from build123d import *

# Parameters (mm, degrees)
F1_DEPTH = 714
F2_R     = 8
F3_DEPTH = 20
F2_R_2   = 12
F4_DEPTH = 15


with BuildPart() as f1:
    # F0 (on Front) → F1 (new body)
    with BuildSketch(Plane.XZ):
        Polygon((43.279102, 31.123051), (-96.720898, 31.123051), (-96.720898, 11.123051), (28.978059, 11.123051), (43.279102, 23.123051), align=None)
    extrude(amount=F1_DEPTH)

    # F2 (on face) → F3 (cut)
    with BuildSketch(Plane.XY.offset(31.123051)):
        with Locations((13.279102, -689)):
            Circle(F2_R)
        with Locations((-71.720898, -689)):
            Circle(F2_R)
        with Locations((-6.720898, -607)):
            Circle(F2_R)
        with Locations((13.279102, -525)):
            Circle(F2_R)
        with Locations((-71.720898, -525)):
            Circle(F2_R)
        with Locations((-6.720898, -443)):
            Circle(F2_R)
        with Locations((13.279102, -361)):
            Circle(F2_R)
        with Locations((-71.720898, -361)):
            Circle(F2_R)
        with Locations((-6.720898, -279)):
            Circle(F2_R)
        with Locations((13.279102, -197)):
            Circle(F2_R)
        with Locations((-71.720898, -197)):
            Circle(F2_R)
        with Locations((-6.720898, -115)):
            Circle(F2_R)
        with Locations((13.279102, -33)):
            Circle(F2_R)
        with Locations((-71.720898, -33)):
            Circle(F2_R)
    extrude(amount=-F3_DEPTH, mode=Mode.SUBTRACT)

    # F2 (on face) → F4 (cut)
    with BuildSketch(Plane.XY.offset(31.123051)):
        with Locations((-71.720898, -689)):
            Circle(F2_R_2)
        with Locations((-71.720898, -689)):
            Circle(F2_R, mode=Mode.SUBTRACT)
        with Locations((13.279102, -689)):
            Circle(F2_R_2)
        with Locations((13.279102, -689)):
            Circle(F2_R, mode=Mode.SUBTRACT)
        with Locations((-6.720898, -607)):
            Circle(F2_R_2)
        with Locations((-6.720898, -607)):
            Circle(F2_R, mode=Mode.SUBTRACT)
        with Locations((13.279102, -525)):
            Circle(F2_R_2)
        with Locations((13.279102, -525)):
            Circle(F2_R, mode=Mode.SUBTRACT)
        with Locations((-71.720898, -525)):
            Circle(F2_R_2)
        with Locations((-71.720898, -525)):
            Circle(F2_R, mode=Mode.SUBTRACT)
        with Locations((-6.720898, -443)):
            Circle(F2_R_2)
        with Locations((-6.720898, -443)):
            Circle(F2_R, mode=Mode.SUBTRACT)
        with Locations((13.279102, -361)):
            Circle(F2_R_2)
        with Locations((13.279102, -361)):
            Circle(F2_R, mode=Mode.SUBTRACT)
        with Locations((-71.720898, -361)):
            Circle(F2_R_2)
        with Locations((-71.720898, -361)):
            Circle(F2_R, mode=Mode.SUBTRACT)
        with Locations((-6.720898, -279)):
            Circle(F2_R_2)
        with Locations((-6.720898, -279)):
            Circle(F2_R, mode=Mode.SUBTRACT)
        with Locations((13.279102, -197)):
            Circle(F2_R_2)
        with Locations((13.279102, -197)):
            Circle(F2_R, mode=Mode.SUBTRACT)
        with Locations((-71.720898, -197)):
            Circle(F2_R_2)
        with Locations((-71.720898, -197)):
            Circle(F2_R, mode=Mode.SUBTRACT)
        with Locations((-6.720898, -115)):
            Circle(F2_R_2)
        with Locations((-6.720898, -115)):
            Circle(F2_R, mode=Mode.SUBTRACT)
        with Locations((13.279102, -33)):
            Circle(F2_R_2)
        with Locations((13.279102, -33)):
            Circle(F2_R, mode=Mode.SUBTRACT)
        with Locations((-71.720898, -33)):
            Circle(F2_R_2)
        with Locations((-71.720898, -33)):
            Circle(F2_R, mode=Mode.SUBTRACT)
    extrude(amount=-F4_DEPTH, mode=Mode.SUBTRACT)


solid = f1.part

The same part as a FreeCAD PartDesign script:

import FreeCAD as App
import Part
import Sketcher
from FreeCAD import Vector
Q = App.Units.Quantity

doc = App.newDocument("Part")
body = doc.addObject("PartDesign::Body", "Body")

# Sketch on XZ plane
sketch1 = body.newObject("Sketcher::SketchObject", "Sketch")
sketch1.AttachmentSupport = (doc.getObject("XZ_Plane"), [""])
sketch1.MapMode = "FlatFace"
sketch1.addGeometry([
    Part.LineSegment(Vector(43.279102, 31.123051, 0), Vector(-96.720898, 31.123051, 0)),  # 0
    Part.LineSegment(Vector(-96.720898, 31.123051, 0), Vector(-96.720898, 11.123051, 0)),  # 1
    Part.LineSegment(Vector(-96.720898, 11.123051, 0), Vector(28.978059, 11.123051, 0)),  # 2
    Part.LineSegment(Vector(28.978059, 11.123051, 0), Vector(43.279102, 23.123051, 0)),  # 3
    Part.LineSegment(Vector(43.279102, 23.123051, 0), Vector(43.279102, 31.123051, 0)),  # 4
], False)
sketch1.addConstraint([
    Sketcher.Constraint("Coincident", 0, 2, 1, 1),
    Sketcher.Constraint("Coincident", 1, 2, 2, 1),
    Sketcher.Constraint("Coincident", 2, 2, 3, 1),
    Sketcher.Constraint("Coincident", 3, 2, 4, 1),
    Sketcher.Constraint("Coincident", 4, 2, 0, 1),
    Sketcher.Constraint("Horizontal", 0),
    Sketcher.Constraint("Vertical", 1),
    Sketcher.Constraint("Horizontal", 2),
    Sketcher.Constraint("Vertical", 4),
    Sketcher.Constraint("DistanceX", 0, 2, 0, 1, 140.0),
    Sketcher.Constraint("DistanceY", 1, 2, 1, 1, 20.0),
    Sketcher.Constraint("DistanceY", 4, 1, 4, 2, 8.0),
    Sketcher.Constraint("Angle", 3, Q("40 deg")),
    Sketcher.Constraint("DistanceX", 0, 2, -1, 1, 96.720898),
    Sketcher.Constraint("DistanceY", -1, 1, 0, 2, 31.123051),
])
pad1 = body.newObject("PartDesign::Pad", "Pad")
pad1.Profile = sketch1
pad1.Length = 714

# Sketch on XY plane
sketch2 = body.newObject("Sketcher::SketchObject", "Sketch001")
sketch2.AttachmentSupport = (doc.getObject("XY_Plane"), [""])
sketch2.MapMode = "FlatFace"
sketch2.AttachmentOffset = App.Placement(Vector(0, 0, 31.123051), App.Rotation())
sketch2.addGeometry([
    Part.Circle(Vector(13.279102, -689, 0), Vector(0, 0, 1), 8),  # 0
    Part.Circle(Vector(-71.720898, -689, 0), Vector(0, 0, 1), 8),  # 1
    Part.Circle(Vector(-6.720898, -607, 0), Vector(0, 0, 1), 8),  # 2
    Part.Circle(Vector(13.279102, -525, 0), Vector(0, 0, 1), 8),  # 3
    Part.Circle(Vector(-71.720898, -525, 0), Vector(0, 0, 1), 8),  # 4
    Part.Circle(Vector(-6.720898, -443, 0), Vector(0, 0, 1), 8),  # 5
    Part.Circle(Vector(13.279102, -361, 0), Vector(0, 0, 1), 8),  # 6
    Part.Circle(Vector(-71.720898, -361, 0), Vector(0, 0, 1), 8),  # 7
    Part.Circle(Vector(-6.720898, -279, 0), Vector(0, 0, 1), 8),  # 8
    Part.Circle(Vector(13.279102, -197, 0), Vector(0, 0, 1), 8),  # 9
    Part.Circle(Vector(-71.720898, -197, 0), Vector(0, 0, 1), 8),  # 10
    Part.Circle(Vector(-6.720898, -115, 0), Vector(0, 0, 1), 8),  # 11
    Part.Circle(Vector(13.279102, -33, 0), Vector(0, 0, 1), 8),  # 12
    Part.Circle(Vector(-71.720898, -33, 0), Vector(0, 0, 1), 8),  # 13
], False)
sketch2.addConstraint([
    Sketcher.Constraint("Equal", 0, 1),
    Sketcher.Constraint("Equal", 1, 2),
    Sketcher.Constraint("Equal", 2, 3),
    Sketcher.Constraint("Equal", 3, 4),
    Sketcher.Constraint("Equal", 4, 5),
    Sketcher.Constraint("Equal", 5, 6),
    Sketcher.Constraint("Equal", 6, 7),
    Sketcher.Constraint("Equal", 7, 8),
    Sketcher.Constraint("Equal", 8, 9),
    Sketcher.Constraint("Equal", 9, 10),
    Sketcher.Constraint("Equal", 10, 11),
    Sketcher.Constraint("Equal", 11, 12),
    Sketcher.Constraint("Equal", 12, 13),
    Sketcher.Constraint("Horizontal", 0, 3, 1, 3),
    Sketcher.Constraint("Horizontal", 3, 3, 4, 3),
    Sketcher.Constraint("Horizontal", 6, 3, 7, 3),
    Sketcher.Constraint("Horizontal", 9, 3, 10, 3),
    Sketcher.Constraint("Horizontal", 12, 3, 13, 3),
    Sketcher.Constraint("Vertical", 0, 3, 3, 3),
    Sketcher.Constraint("Vertical", 1, 3, 4, 3),
    Sketcher.Constraint("Vertical", 2, 3, 5, 3),
    Sketcher.Constraint("Vertical", 3, 3, 6, 3),
    Sketcher.Constraint("Vertical", 4, 3, 7, 3),
    Sketcher.Constraint("Vertical", 5, 3, 8, 3),
    Sketcher.Constraint("Vertical", 6, 3, 9, 3),
    Sketcher.Constraint("Vertical", 7, 3, 10, 3),
    Sketcher.Constraint("Vertical", 8, 3, 11, 3),
    Sketcher.Constraint("Vertical", 9, 3, 12, 3),
    Sketcher.Constraint("Vertical", 10, 3, 13, 3),
    Sketcher.Constraint("Diameter", 0, 16.0),
    Sketcher.Constraint("DistanceY", 0, 3, -1, 1, 689.0),
    Sketcher.Constraint("DistanceY", 2, 3, -1, 1, 607.0),
    Sketcher.Constraint("DistanceY", 3, 3, -1, 1, 525.0),
    Sketcher.Constraint("DistanceY", 5, 3, -1, 1, 443.0),
    Sketcher.Constraint("DistanceY", 6, 3, -1, 1, 361.0),
    Sketcher.Constraint("DistanceY", 8, 3, -1, 1, 279.0),
    Sketcher.Constraint("DistanceY", 9, 3, -1, 1, 197.0),
    Sketcher.Constraint("DistanceY", 11, 3, -1, 1, 115.0),
    Sketcher.Constraint("DistanceY", 12, 3, -1, 1, 33.0),
    Sketcher.Constraint("DistanceX", 1, 3, 0, 3, 85.0),
    Sketcher.Constraint("DistanceX", 2, 3, 0, 3, 20.0),
    Sketcher.Constraint("DistanceX", 1, 3, -1, 1, 71.720898),
])
pocket1 = body.newObject("PartDesign::Pocket", "Pocket")
pocket1.Profile = sketch2
pocket1.Length = 20

# Sketch on XY plane
sketch3 = body.newObject("Sketcher::SketchObject", "Sketch002")
sketch3.AttachmentSupport = (doc.getObject("XY_Plane"), [""])
sketch3.MapMode = "FlatFace"
sketch3.AttachmentOffset = App.Placement(Vector(0, 0, 31.123051), App.Rotation())
sketch3.addGeometry([
    Part.Circle(Vector(-71.720898, -689, 0), Vector(0, 0, 1), 12),  # 0
    Part.Circle(Vector(-71.720898, -689, 0), Vector(0, 0, 1), 8),  # 1
    Part.Circle(Vector(13.279102, -689, 0), Vector(0, 0, 1), 12),  # 2
    Part.Circle(Vector(13.279102, -689, 0), Vector(0, 0, 1), 8),  # 3
    Part.Circle(Vector(-6.720898, -607, 0), Vector(0, 0, 1), 12),  # 4
    Part.Circle(Vector(-6.720898, -607, 0), Vector(0, 0, 1), 8),  # 5
    Part.Circle(Vector(13.279102, -525, 0), Vector(0, 0, 1), 12),  # 6
    Part.Circle(Vector(13.279102, -525, 0), Vector(0, 0, 1), 8),  # 7
    Part.Circle(Vector(-71.720898, -525, 0), Vector(0, 0, 1), 12),  # 8
    Part.Circle(Vector(-71.720898, -525, 0), Vector(0, 0, 1), 8),  # 9
    Part.Circle(Vector(-6.720898, -443, 0), Vector(0, 0, 1), 12),  # 10
    Part.Circle(Vector(-6.720898, -443, 0), Vector(0, 0, 1), 8),  # 11
    Part.Circle(Vector(13.279102, -361, 0), Vector(0, 0, 1), 12),  # 12
    Part.Circle(Vector(13.279102, -361, 0), Vector(0, 0, 1), 8),  # 13
    Part.Circle(Vector(-71.720898, -361, 0), Vector(0, 0, 1), 12),  # 14
    Part.Circle(Vector(-71.720898, -361, 0), Vector(0, 0, 1), 8),  # 15
    Part.Circle(Vector(-6.720898, -279, 0), Vector(0, 0, 1), 12),  # 16
    Part.Circle(Vector(-6.720898, -279, 0), Vector(0, 0, 1), 8),  # 17
    Part.Circle(Vector(13.279102, -197, 0), Vector(0, 0, 1), 12),  # 18
    Part.Circle(Vector(13.279102, -197, 0), Vector(0, 0, 1), 8),  # 19
    Part.Circle(Vector(-71.720898, -197, 0), Vector(0, 0, 1), 12),  # 20
    Part.Circle(Vector(-71.720898, -197, 0), Vector(0, 0, 1), 8),  # 21
    Part.Circle(Vector(-6.720898, -115, 0), Vector(0, 0, 1), 12),  # 22
    Part.Circle(Vector(-6.720898, -115, 0), Vector(0, 0, 1), 8),  # 23
    Part.Circle(Vector(13.279102, -33, 0), Vector(0, 0, 1), 12),  # 24
    Part.Circle(Vector(13.279102, -33, 0), Vector(0, 0, 1), 8),  # 25
    Part.Circle(Vector(-71.720898, -33, 0), Vector(0, 0, 1), 12),  # 26
    Part.Circle(Vector(-71.720898, -33, 0), Vector(0, 0, 1), 8),  # 27
], False)
sketch3.addConstraint([
    Sketcher.Constraint("Coincident", 1, 3, 0, 3),
    Sketcher.Constraint("Coincident", 3, 3, 2, 3),
    Sketcher.Constraint("Coincident", 5, 3, 4, 3),
    Sketcher.Constraint("Coincident", 7, 3, 6, 3),
    Sketcher.Constraint("Coincident", 9, 3, 8, 3),
    Sketcher.Constraint("Coincident", 11, 3, 10, 3),
    Sketcher.Constraint("Coincident", 13, 3, 12, 3),
    Sketcher.Constraint("Coincident", 15, 3, 14, 3),
    Sketcher.Constraint("Coincident", 17, 3, 16, 3),
    Sketcher.Constraint("Coincident", 19, 3, 18, 3),
    Sketcher.Constraint("Coincident", 21, 3, 20, 3),
    Sketcher.Constraint("Coincident", 23, 3, 22, 3),
    Sketcher.Constraint("Coincident", 25, 3, 24, 3),
    Sketcher.Constraint("Coincident", 27, 3, 26, 3),
    Sketcher.Constraint("Equal", 0, 2),
    Sketcher.Constraint("Equal", 1, 3),
    Sketcher.Constraint("Equal", 2, 4),
    Sketcher.Constraint("Equal", 3, 5),
    Sketcher.Constraint("Equal", 4, 6),
    Sketcher.Constraint("Equal", 5, 7),
    Sketcher.Constraint("Equal", 6, 8),
    Sketcher.Constraint("Equal", 7, 9),
    Sketcher.Constraint("Equal", 8, 10),
    Sketcher.Constraint("Equal", 9, 11),
    Sketcher.Constraint("Equal", 10, 12),
    Sketcher.Constraint("Equal", 11, 13),
    Sketcher.Constraint("Equal", 12, 14),
    Sketcher.Constraint("Equal", 13, 15),
    Sketcher.Constraint("Equal", 14, 16),
    Sketcher.Constraint("Equal", 15, 17),
    Sketcher.Constraint("Equal", 16, 18),
    Sketcher.Constraint("Equal", 17, 19),
    Sketcher.Constraint("Equal", 18, 20),
    Sketcher.Constraint("Equal", 19, 21),
    Sketcher.Constraint("Equal", 20, 22),
    Sketcher.Constraint("Equal", 21, 23),
    Sketcher.Constraint("Equal", 22, 24),
    Sketcher.Constraint("Equal", 23, 25),
    Sketcher.Constraint("Equal", 24, 26),
    Sketcher.Constraint("Equal", 25, 27),
    Sketcher.Constraint("Horizontal", 1, 3, 2, 3),
    Sketcher.Constraint("Horizontal", 7, 3, 8, 3),
    Sketcher.Constraint("Horizontal", 13, 3, 14, 3),
    Sketcher.Constraint("Horizontal", 19, 3, 20, 3),
    Sketcher.Constraint("Horizontal", 25, 3, 26, 3),
    Sketcher.Constraint("Vertical", 3, 3, 6, 3),
    Sketcher.Constraint("Vertical", 1, 3, 8, 3),
    Sketcher.Constraint("Vertical", 5, 3, 10, 3),
    Sketcher.Constraint("Vertical", 7, 3, 12, 3),
    Sketcher.Constraint("Vertical", 9, 3, 14, 3),
    Sketcher.Constraint("Vertical", 11, 3, 16, 3),
    Sketcher.Constraint("Vertical", 13, 3, 18, 3),
    Sketcher.Constraint("Vertical", 15, 3, 20, 3),
    Sketcher.Constraint("Vertical", 17, 3, 22, 3),
    Sketcher.Constraint("Vertical", 19, 3, 24, 3),
    Sketcher.Constraint("Vertical", 21, 3, 26, 3),
    Sketcher.Constraint("Diameter", 0, 24.0),
    Sketcher.Constraint("Diameter", 1, 16.0),
    Sketcher.Constraint("DistanceY", 0, 3, -1, 1, 689.0),
    Sketcher.Constraint("DistanceY", 4, 3, -1, 1, 607.0),
    Sketcher.Constraint("DistanceY", 6, 3, -1, 1, 525.0),
    Sketcher.Constraint("DistanceY", 10, 3, -1, 1, 443.0),
    Sketcher.Constraint("DistanceY", 12, 3, -1, 1, 361.0),
    Sketcher.Constraint("DistanceY", 16, 3, -1, 1, 279.0),
    Sketcher.Constraint("DistanceY", 18, 3, -1, 1, 197.0),
    Sketcher.Constraint("DistanceY", 22, 3, -1, 1, 115.0),
    Sketcher.Constraint("DistanceY", 24, 3, -1, 1, 33.0),
    Sketcher.Constraint("DistanceX", 0, 3, 2, 3, 85.0),
    Sketcher.Constraint("DistanceX", 4, 3, 2, 3, 20.0),
    Sketcher.Constraint("DistanceX", 0, 3, -1, 1, 71.720898),
])
pocket2 = body.newObject("PartDesign::Pocket", "Pocket001")
pocket2.Profile = sketch3
pocket2.Length = 15

doc.recompute()
